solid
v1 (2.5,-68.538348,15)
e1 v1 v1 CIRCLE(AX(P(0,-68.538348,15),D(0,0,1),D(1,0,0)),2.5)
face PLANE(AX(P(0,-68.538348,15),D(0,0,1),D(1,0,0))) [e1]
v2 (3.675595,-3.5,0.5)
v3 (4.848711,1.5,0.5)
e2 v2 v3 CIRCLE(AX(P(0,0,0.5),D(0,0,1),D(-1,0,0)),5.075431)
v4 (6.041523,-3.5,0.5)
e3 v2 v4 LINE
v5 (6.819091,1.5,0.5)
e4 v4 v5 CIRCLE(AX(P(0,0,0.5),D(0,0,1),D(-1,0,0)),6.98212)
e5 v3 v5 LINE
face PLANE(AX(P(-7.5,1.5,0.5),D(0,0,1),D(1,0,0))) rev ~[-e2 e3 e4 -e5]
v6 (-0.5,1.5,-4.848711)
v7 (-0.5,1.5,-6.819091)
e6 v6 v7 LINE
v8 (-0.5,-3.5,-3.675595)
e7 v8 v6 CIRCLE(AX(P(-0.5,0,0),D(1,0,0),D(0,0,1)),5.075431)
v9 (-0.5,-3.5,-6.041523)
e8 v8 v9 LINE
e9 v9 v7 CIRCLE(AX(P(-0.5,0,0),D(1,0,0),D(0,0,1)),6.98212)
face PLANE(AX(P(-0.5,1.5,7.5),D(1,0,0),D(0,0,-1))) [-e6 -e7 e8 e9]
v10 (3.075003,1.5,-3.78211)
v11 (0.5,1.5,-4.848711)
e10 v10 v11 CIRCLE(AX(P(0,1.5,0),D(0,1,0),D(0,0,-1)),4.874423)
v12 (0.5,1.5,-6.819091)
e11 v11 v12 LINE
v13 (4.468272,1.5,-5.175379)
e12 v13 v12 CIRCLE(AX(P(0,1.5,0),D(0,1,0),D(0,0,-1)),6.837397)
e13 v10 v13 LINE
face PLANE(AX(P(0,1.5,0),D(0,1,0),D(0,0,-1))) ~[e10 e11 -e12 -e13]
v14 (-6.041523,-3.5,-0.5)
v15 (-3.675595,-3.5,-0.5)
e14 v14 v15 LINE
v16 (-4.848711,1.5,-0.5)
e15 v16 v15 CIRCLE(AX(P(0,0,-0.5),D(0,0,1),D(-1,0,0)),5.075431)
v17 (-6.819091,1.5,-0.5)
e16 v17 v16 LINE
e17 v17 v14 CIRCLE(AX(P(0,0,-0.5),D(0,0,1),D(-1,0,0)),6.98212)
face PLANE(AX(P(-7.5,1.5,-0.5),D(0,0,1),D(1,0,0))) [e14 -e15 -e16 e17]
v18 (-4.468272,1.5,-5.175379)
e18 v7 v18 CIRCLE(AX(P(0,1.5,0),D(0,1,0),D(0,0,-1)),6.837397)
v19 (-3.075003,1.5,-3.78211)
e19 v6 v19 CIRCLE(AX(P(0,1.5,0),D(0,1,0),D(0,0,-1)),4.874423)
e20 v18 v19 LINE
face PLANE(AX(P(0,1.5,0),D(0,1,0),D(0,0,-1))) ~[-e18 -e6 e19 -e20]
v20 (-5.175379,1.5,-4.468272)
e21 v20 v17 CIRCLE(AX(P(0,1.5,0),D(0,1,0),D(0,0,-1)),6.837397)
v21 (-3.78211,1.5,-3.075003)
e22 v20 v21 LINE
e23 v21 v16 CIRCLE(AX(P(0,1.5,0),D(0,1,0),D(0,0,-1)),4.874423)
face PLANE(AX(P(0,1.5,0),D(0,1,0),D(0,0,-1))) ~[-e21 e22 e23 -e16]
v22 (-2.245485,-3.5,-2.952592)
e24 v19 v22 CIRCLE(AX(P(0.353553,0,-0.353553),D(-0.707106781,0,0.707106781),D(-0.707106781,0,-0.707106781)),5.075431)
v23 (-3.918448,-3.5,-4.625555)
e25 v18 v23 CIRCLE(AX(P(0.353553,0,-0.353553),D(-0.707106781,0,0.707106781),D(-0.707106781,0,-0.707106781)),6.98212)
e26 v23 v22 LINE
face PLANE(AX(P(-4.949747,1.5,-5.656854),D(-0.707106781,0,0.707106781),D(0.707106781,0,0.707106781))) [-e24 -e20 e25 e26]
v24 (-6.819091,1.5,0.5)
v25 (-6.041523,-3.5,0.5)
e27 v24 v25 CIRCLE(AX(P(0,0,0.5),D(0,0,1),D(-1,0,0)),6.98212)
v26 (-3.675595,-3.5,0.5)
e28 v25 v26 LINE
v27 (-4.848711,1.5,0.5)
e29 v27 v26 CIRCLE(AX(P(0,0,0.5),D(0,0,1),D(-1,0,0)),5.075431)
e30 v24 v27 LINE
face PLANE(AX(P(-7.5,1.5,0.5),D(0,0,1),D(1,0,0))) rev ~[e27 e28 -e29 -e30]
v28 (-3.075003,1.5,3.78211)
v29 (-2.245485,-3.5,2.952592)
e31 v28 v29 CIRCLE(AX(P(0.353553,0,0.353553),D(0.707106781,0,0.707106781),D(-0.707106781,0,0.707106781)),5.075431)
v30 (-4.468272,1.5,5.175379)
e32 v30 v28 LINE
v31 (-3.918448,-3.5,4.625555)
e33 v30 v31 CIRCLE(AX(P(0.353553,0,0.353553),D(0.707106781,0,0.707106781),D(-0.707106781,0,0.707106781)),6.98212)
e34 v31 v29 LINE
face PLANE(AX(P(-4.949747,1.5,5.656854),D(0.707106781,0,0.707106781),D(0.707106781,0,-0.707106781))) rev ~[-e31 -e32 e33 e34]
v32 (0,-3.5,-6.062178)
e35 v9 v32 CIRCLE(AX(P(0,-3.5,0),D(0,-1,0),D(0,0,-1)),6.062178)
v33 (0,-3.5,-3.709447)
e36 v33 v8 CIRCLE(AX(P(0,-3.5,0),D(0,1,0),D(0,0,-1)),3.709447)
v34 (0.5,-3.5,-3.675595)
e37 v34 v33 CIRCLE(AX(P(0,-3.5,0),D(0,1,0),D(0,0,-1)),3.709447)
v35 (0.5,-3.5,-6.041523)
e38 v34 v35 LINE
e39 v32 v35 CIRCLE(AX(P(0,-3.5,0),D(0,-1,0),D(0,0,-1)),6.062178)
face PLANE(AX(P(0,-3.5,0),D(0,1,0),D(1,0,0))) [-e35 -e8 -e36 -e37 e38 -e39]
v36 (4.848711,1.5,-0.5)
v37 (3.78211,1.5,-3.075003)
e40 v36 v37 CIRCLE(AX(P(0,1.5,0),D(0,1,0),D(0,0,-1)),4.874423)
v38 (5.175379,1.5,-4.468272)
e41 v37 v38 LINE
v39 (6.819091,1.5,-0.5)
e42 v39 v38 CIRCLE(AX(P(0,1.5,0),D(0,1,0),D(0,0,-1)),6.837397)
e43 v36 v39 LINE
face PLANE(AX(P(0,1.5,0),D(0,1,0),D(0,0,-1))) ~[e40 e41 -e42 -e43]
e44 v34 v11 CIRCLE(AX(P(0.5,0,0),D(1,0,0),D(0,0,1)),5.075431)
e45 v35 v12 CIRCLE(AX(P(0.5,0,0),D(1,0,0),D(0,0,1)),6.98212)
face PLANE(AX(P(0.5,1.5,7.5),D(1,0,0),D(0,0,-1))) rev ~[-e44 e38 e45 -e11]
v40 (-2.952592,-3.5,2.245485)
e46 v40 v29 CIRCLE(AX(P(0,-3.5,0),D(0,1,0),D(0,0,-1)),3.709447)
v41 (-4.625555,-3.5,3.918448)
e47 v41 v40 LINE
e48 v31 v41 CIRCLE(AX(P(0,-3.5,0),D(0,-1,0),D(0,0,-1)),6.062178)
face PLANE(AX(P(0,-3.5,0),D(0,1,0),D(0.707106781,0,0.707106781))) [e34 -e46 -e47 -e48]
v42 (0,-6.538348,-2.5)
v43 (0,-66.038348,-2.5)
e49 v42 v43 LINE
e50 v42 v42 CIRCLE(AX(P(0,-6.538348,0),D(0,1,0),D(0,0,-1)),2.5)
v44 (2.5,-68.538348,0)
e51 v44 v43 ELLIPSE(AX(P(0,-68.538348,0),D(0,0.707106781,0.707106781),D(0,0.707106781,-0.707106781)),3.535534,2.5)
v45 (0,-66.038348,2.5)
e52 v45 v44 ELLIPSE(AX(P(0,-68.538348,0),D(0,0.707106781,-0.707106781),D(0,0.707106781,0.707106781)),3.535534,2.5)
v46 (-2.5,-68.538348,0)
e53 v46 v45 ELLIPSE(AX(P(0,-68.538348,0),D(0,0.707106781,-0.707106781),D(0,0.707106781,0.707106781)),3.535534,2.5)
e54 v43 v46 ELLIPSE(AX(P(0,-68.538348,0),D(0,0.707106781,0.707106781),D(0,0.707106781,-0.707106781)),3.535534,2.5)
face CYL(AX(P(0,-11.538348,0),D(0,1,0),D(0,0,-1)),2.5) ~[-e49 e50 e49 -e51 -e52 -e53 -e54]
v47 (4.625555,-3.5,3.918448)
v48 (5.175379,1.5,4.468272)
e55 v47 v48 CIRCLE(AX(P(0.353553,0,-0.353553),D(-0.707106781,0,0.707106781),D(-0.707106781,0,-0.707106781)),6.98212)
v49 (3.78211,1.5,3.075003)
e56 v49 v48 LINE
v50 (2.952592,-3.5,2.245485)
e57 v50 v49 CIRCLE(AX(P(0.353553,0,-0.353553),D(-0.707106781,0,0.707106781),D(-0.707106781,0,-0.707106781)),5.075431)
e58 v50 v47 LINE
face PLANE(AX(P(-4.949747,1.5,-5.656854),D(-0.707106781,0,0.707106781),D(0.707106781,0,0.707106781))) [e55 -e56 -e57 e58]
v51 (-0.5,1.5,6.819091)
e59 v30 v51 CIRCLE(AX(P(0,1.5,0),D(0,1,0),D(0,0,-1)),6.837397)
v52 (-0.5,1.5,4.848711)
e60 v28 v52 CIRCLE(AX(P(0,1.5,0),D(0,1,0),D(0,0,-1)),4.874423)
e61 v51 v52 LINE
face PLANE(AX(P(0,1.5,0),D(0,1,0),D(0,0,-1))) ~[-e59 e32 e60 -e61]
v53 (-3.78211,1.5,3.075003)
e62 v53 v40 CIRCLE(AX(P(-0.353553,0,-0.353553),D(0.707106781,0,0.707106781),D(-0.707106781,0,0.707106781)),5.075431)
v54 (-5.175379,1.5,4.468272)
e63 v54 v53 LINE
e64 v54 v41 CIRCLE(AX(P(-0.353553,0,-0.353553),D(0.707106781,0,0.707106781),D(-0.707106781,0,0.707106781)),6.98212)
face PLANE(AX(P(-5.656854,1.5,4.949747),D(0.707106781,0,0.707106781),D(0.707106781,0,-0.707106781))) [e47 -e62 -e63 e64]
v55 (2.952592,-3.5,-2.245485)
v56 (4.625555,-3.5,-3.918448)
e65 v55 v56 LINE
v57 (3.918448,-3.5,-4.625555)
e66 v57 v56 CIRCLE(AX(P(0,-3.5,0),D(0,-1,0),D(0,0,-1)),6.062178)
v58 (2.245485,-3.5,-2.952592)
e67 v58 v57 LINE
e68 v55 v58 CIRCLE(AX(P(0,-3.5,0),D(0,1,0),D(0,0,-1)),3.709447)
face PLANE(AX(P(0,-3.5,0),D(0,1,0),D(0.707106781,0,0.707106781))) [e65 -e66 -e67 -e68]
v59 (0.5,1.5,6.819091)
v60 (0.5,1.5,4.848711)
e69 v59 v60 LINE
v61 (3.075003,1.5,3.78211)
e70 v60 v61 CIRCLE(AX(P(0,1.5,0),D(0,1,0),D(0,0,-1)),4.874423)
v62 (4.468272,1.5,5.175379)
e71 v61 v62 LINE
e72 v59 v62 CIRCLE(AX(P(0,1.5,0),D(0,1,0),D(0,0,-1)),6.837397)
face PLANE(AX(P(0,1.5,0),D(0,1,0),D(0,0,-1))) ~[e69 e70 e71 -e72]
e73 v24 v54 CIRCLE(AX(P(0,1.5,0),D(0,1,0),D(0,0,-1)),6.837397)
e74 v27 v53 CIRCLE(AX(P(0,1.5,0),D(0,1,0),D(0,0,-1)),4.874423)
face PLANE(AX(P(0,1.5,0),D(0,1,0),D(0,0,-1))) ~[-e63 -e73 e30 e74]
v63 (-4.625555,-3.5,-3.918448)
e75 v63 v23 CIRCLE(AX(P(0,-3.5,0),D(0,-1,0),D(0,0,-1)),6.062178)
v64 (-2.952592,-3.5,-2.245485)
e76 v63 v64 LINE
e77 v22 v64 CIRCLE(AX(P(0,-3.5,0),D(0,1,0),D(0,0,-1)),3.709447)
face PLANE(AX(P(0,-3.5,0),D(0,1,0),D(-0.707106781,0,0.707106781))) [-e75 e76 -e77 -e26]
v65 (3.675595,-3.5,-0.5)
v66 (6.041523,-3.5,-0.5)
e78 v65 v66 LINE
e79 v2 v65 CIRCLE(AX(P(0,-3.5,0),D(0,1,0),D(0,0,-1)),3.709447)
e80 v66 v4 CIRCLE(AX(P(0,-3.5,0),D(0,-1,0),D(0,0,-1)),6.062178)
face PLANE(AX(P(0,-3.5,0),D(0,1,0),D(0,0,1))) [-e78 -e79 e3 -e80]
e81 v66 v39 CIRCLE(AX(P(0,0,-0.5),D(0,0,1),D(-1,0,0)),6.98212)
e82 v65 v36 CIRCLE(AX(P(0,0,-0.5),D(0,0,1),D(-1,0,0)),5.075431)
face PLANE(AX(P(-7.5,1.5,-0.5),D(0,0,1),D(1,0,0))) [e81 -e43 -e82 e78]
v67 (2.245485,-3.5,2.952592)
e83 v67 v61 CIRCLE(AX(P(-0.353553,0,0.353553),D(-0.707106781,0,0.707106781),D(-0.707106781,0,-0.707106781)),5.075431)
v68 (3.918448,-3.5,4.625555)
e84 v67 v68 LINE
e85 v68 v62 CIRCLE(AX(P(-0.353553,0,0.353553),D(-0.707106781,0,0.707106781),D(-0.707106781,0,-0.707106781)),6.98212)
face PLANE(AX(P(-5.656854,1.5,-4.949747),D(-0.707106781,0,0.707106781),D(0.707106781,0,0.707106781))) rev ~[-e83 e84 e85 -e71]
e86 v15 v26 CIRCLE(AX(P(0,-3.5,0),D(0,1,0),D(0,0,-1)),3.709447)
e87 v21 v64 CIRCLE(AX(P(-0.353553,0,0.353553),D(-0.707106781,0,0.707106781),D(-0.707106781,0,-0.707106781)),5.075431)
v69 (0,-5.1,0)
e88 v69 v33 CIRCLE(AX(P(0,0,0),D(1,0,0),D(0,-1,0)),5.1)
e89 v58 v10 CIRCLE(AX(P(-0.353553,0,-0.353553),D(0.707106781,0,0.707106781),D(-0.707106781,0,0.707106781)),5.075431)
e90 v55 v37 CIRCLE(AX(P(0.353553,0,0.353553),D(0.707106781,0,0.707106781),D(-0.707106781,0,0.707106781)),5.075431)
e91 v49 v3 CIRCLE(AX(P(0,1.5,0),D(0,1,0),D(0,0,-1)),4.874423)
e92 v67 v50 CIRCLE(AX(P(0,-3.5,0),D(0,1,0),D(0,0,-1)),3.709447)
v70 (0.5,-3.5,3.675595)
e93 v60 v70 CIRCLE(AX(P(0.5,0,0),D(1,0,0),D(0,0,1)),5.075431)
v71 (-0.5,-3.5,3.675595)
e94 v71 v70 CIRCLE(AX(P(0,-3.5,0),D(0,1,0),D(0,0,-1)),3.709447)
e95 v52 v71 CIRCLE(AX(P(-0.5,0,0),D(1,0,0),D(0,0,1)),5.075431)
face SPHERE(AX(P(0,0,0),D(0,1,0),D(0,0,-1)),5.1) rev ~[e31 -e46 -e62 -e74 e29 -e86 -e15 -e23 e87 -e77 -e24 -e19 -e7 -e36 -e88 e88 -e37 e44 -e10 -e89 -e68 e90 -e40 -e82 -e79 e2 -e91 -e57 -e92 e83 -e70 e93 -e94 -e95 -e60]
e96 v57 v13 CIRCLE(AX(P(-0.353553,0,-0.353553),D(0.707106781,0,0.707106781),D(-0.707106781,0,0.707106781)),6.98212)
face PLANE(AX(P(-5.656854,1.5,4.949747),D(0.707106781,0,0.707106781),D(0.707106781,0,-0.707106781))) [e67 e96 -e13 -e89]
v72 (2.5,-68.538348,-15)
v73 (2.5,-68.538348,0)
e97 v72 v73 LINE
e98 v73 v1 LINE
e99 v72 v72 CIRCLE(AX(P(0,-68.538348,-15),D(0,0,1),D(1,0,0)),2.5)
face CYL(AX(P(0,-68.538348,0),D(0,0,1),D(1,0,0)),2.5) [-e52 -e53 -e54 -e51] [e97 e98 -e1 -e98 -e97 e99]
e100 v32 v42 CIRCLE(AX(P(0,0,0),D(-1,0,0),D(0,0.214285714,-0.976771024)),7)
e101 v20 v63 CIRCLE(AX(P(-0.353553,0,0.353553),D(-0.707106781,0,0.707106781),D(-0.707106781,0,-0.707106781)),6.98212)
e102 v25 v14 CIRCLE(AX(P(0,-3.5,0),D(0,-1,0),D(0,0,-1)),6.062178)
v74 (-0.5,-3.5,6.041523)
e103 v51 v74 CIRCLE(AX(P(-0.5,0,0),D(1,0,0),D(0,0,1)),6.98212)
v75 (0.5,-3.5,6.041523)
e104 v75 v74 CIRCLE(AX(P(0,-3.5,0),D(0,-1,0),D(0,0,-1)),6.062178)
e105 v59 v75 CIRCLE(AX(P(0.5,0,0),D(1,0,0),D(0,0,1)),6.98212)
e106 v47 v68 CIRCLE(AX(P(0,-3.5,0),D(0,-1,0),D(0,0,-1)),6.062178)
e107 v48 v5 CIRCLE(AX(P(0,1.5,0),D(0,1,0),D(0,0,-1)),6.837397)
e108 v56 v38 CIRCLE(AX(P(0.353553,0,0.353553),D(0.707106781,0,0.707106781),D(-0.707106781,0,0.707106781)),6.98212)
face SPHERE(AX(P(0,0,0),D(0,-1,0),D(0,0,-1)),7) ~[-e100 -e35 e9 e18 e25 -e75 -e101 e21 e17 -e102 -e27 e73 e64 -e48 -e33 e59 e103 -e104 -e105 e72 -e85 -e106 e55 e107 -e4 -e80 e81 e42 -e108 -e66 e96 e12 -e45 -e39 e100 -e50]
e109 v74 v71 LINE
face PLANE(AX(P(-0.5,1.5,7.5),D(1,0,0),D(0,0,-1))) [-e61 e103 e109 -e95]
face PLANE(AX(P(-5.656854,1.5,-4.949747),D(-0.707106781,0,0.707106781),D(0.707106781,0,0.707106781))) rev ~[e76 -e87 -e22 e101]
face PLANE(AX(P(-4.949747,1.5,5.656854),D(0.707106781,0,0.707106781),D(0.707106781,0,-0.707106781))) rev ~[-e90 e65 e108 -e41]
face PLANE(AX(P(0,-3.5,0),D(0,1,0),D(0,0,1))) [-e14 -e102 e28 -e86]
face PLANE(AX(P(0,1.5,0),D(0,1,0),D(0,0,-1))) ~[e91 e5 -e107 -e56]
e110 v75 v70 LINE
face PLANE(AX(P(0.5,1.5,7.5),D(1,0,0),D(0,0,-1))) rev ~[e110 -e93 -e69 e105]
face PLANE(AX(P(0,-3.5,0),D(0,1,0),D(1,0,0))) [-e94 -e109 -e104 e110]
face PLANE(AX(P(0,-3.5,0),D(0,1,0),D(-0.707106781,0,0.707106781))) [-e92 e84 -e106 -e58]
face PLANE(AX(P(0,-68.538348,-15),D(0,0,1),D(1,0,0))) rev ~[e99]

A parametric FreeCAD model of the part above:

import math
import FreeCAD as App
import Part
import Sketcher

doc = App.newDocument("Part")
body = doc.addObject("PartDesign::Body", "Body")

# Sketch on XY plane
sketch1 = body.newObject("Sketcher::SketchObject", "Sketch")
sketch1.AttachmentSupport = (doc.getObject("XY_Plane"), [""])
sketch1.MapMode = "FlatFace"
sketch1.addGeometry(Part.LineSegment(App.Vector(-4.9, 1.5, 0), App.Vector(-6.8, 1.5, 0)), False)
sketch1.addGeometry(Part.ArcOfCircle(Part.Circle(App.Vector(0, 0, 0), App.Vector(0, 0, 1), 7), math.radians(168), math.radians(249)), False)
sketch1.addGeometry(Part.LineSegment(App.Vector(-2.5, -6.5, 0), App.Vector(-2.5, -11.5, 0)), False)
sketch1.addGeometry(Part.LineSegment(App.Vector(-2.5, -11.5, 0), App.Vector(0, -11.5, 0)), False)
sketch1.addGeometry(Part.LineSegment(App.Vector(0, -11.5, 0), App.Vector(0, -5.1, 0)), False)
sketch1.addGeometry(Part.ArcOfCircle(Part.Circle(App.Vector(0, 0, 0), App.Vector(0, 0, 1), 5.1), math.radians(163), math.radians(270)), False)
sketch1.addConstraint(Sketcher.Constraint("Coincident", 0, 2, 1, 1))
sketch1.addConstraint(Sketcher.Constraint("Coincident", 1, 2, 2, 1))
sketch1.addConstraint(Sketcher.Constraint("Coincident", 2, 2, 3, 1))
sketch1.addConstraint(Sketcher.Constraint("Coincident", 3, 2, 4, 1))
sketch1.addConstraint(Sketcher.Constraint("Coincident", 4, 2, 5, 2))
sketch1.addConstraint(Sketcher.Constraint("Coincident", 5, 1, 0, 1))
sketch1.addConstraint(Sketcher.Constraint("Horizontal", 0))
sketch1.addConstraint(Sketcher.Constraint("Vertical", 2))
sketch1.addConstraint(Sketcher.Constraint("Horizontal", 3))
sketch1.addConstraint(Sketcher.Constraint("Vertical", 4))
sketch1.addConstraint(Sketcher.Constraint("Coincident", 1, 3, -1, 1))
sketch1.addConstraint(Sketcher.Constraint("Coincident", 5, 3, -1, 1))
sketch1.addConstraint(Sketcher.Constraint("PointOnObject", 3, 2, -2))
sketch1.addConstraint(Sketcher.Constraint("Radius", 1, 7.0))
sketch1.addConstraint(Sketcher.Constraint("Radius", 5, 5.1))
sketch1.addConstraint(Sketcher.Constraint("DistanceY", 2, 2, 2, 1, 5.0))
sketch1.addConstraint(Sketcher.Constraint("DistanceX", 3, 1, 3, 2, 2.5))
sketch1.addConstraint(Sketcher.Constraint("DistanceY", -1, 1, 0, 2, 1.5))
revolution = body.newObject("PartDesign::Revolution", "Revolution")
revolution.Profile = sketch1
revolution.ReferenceAxis = (sketch1, ["V_Axis"])
revolution.Angle = 360

# Sketch on XZ plane
sketch2 = body.newObject("Sketcher::SketchObject", "Sketch001")
sketch2.AttachmentSupport = (doc.getObject("XZ_Plane"), [""])
sketch2.MapMode = "FlatFace"
sketch2.AttachmentOffset = App.Placement(App.Vector(0, 0, -1.5), App.Rotation())
sketch2.addGeometry(Part.LineSegment(App.Vector(-0.5, -7.5, 0), App.Vector(-0.5, 7.5, 0)), False)
sketch2.addGeometry(Part.LineSegment(App.Vector(-0.5, 7.5, 0), App.Vector(0.5, 7.5, 0)), False)
sketch2.addGeometry(Part.LineSegment(App.Vector(0.5, 7.5, 0), App.Vector(0.5, -7.5, 0)), False)
sketch2.addGeometry(Part.LineSegment(App.Vector(0.5, -7.5, 0), App.Vector(-0.5, -7.5, 0)), False)
sketch2.addConstraint(Sketcher.Constraint("Coincident", 0, 2, 1, 1))
sketch2.addConstraint(Sketcher.Constraint("Coincident", 1, 2, 2, 1))
sketch2.addConstraint(Sketcher.Constraint("Coincident", 2, 2, 3, 1))
sketch2.addConstraint(Sketcher.Constraint("Coincident", 3, 2, 0, 1))
sketch2.addConstraint(Sketcher.Constraint("Vertical", 0))
sketch2.addConstraint(Sketcher.Constraint("Horizontal", 1))
sketch2.addConstraint(Sketcher.Constraint("Vertical", 2))
sketch2.addConstraint(Sketcher.Constraint("Horizontal", 3))
sketch2.addConstraint(Sketcher.Constraint("Symmetric", 0, 2, 2, 2, -1, 1))
sketch2.addConstraint(Sketcher.Constraint("DistanceX", 1, 1, 1, 2, 1.0))
sketch2.addConstraint(Sketcher.Constraint("DistanceY", 0, 1, 0, 2, 15.0))
pocket1 = body.newObject("PartDesign::Pocket", "Pocket")
pocket1.Profile = sketch2
pocket1.Length = 5
pocket1.Reversed = True
doc.recompute()

polarpattern = body.newObject("PartDesign::PolarPattern", "PolarPattern")
polarpattern.Originals = [pocket1]
polarpattern.Axis = (doc.getObject("Y_Axis"), [""])
polarpattern.Angle = 135
polarpattern.Occurrences = 4
polarpattern.Reversed = True
body.Tip = polarpattern

# Sketch on XZ plane
sketch3 = body.newObject("Sketcher::SketchObject", "Sketch002")
sketch3.AttachmentSupport = (doc.getObject("XZ_Plane"), [""])
sketch3.MapMode = "FlatFace"
sketch3.AttachmentOffset = App.Placement(App.Vector(0, 0, 11.538348), App.Rotation())
sketch3.addGeometry(Part.Circle(App.Vector(0, 0, 0), App.Vector(0, 0, 1), 2.5), False)
sketch3.addConstraint(Sketcher.Constraint("Coincident", 0, 3, -1, 1))
sketch3.addConstraint(Sketcher.Constraint("Diameter", 0, 5.0))
pad1 = body.newObject("PartDesign::Pad", "Pad")
pad1.Profile = sketch3
pad1.Length = 57

# Sketch on XY plane
sketch4 = body.newObject("Sketcher::SketchObject", "Sketch003")
sketch4.AttachmentSupport = (doc.getObject("XY_Plane"), [""])
sketch4.MapMode = "FlatFace"
sketch4.addGeometry(Part.Circle(App.Vector(0, -68.5, 0), App.Vector(0, 0, 1), 2.5), False)
sketch4.addConstraint(Sketcher.Constraint("PointOnObject", 0, 3, -2))
sketch4.addConstraint(Sketcher.Constraint("Diameter", 0, 5.0))
sketch4.addConstraint(Sketcher.Constraint("DistanceY", 0, 3, -1, 1, 68.538348))
pad2 = body.newObject("PartDesign::Pad", "Pad001")
pad2.Profile = sketch4
pad2.Length = 30
pad2.Midplane = True

doc.recompute()
